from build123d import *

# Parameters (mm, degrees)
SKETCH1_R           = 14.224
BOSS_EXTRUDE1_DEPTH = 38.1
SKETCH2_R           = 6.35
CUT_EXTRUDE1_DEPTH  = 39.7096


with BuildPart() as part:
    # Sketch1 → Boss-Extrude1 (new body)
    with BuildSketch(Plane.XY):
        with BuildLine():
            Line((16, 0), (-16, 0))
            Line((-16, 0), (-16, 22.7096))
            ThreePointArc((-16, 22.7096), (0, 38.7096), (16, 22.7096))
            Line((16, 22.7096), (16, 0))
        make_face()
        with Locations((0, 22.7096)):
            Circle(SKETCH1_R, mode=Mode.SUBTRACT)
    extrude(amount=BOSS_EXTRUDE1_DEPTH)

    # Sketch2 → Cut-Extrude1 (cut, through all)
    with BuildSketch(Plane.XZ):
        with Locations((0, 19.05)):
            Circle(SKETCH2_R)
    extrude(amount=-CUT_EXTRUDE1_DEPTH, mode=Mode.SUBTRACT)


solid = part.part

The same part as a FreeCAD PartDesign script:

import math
import FreeCAD as App
import Part
import Sketcher
Q = App.Units.Quantity

doc = App.newDocument("Part")
params = doc.addObject("Spreadsheet::Sheet", "Params")
for row, (alias, value) in enumerate([
    ("sketch1_diameter", "1.12 in"),
    ("pad1_length", "1.5 in"),
    ("sketch2_diameter", "0.5 in"),
], start=1):
    params.set(f"A{row}", alias)
    params.set(f"B{row}", "=" + value)
    params.setAlias(f"B{row}", alias)

body = doc.addObject("PartDesign::Body", "Body")

sketch1 = body.newObject("Sketcher::SketchObject", "Sketch")
sketch1.AttachmentSupport = (doc.getObject("XY_Plane"), [""])
sketch1.MapMode = "FlatFace"
sketch1.addGeometry(Part.LineSegment(App.Vector(-16, 0, 0), App.Vector(16, 0, 0)), False)
sketch1.addGeometry(Part.LineSegment(App.Vector(16, 0, 0), App.Vector(16, 22.7096, 0)), False)
sketch1.addGeometry(Part.ArcOfCircle(Part.Circle(App.Vector(0, 22.7096, 0), App.Vector(0, 0, 1), 16), math.radians(0), math.radians(180)), False)
sketch1.addGeometry(Part.LineSegment(App.Vector(-16, 22.7096, 0), App.Vector(-16, 0, 0)), False)
sketch1.addGeometry(Part.Circle(App.Vector(0, 22.7096, 0), App.Vector(0, 0, 1), 14.224), False)
sketch1.addConstraint(Sketcher.Constraint("Coincident", 0, 2, 1, 1))
sketch1.addConstraint(Sketcher.Constraint("Tangent", 1, 2, 2, 1))
sketch1.addConstraint(Sketcher.Constraint("Tangent", 2, 2, 3, 1))
sketch1.addConstraint(Sketcher.Constraint("Coincident", 3, 2, 0, 1))
sketch1.addConstraint(Sketcher.Constraint("Horizontal", 0))
sketch1.addConstraint(Sketcher.Constraint("Vertical", 1))
sketch1.addConstraint(Sketcher.Constraint("Vertical", 3))
sketch1.addConstraint(Sketcher.Constraint("Coincident", 4, 3, 2, 3))
sketch1.addConstraint(Sketcher.Constraint("Symmetric", 0, 2, 3, 2, -1, 1))
sketch1.addConstraint(Sketcher.Constraint("Diameter", 4, Q("1.12 in")))
sketch1.addConstraint(Sketcher.Constraint("Radius", 2, Q("16 mm")))
sketch1.addConstraint(Sketcher.Constraint("DistanceY", 1, 1, 1, 2, Q("22.7096 mm")))
sketch1.setExpression("Constraints[9]", "Params.sketch1_diameter")
pad1 = body.newObject("PartDesign::Pad", "Pad")
pad1.Profile = sketch1
pad1.setExpression("Length", "Params.pad1_length")

sketch2 = body.newObject("Sketcher::SketchObject", "Sketch001")
sketch2.AttachmentSupport = (doc.getObject("XZ_Plane"), [""])
sketch2.MapMode = "FlatFace"
sketch2.addGeometry(Part.Circle(App.Vector(0, 19.05, 0), App.Vector(0, 0, 1), 6.35), False)
sketch2.addConstraint(Sketcher.Constraint("PointOnObject", 0, 3, -2))
sketch2.addConstraint(Sketcher.Constraint("Diameter", 0, Q("0.5 in")))
sketch2.addConstraint(Sketcher.Constraint("DistanceY", -1, 1, 0, 3, Q("0.75 in")))
sketch2.setExpression("Constraints[1]", "Params.sketch2_diameter")
pocket1 = body.newObject("PartDesign::Pocket", "Pocket")
pocket1.Profile = sketch2
pocket1.Type = "ThroughAll"

doc.recompute()
